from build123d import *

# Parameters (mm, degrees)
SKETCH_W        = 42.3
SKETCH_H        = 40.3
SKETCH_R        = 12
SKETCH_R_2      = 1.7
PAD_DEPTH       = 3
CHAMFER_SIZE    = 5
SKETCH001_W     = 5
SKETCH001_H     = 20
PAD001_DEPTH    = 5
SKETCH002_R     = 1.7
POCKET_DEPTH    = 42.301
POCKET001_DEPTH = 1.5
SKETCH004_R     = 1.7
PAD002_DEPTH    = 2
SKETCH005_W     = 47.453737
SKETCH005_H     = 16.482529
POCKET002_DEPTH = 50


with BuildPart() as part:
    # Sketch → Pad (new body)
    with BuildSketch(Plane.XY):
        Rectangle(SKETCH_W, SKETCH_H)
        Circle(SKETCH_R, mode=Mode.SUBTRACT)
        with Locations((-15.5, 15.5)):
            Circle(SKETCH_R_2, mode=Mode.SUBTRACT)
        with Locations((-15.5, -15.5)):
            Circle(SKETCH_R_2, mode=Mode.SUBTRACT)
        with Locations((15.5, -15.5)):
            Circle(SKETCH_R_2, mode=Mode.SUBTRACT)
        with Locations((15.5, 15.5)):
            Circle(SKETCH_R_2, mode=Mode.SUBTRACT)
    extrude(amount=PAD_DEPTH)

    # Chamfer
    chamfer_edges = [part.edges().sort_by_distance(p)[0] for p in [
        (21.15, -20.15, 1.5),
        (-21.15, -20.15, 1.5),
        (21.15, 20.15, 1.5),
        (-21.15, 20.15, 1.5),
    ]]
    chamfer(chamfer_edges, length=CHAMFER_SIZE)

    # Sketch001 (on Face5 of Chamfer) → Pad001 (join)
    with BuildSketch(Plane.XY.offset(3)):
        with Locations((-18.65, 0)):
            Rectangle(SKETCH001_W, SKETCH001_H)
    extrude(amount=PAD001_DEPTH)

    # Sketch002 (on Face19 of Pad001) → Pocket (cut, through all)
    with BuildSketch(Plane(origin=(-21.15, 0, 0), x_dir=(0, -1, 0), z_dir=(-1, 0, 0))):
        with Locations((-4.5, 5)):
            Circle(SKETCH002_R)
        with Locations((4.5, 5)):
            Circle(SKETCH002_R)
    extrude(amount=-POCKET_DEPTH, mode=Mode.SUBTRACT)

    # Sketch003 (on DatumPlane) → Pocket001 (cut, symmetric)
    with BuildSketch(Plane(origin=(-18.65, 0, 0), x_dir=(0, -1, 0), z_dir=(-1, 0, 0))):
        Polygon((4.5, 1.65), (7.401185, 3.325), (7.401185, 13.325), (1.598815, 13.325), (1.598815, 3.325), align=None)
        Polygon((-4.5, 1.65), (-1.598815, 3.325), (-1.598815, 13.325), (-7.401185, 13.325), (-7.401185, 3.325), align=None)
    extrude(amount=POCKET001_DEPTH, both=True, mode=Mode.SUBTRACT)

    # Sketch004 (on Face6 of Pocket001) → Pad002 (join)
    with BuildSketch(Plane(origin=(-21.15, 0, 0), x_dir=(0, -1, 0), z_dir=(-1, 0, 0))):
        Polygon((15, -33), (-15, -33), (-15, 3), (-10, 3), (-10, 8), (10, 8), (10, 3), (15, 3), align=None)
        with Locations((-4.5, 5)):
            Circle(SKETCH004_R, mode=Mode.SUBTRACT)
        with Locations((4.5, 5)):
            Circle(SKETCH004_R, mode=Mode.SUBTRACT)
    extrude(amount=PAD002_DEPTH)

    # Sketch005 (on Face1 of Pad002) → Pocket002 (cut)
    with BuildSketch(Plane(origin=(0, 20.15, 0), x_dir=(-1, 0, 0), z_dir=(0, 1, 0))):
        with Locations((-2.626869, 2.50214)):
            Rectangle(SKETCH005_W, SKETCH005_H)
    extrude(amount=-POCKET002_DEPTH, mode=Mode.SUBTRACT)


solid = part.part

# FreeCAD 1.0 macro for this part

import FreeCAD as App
import Part
import Sketcher
from FreeCAD import Vector
Q = App.Units.Quantity


def edges_at(feature, points):
    """Names of the edges that pass closest to the given points."""
    edges = feature.Shape.Edges
    near = lambda p: min(range(len(edges)), key=lambda i: edges[i].distToShape(Part.Vertex(*p))[0])
    return sorted({f"Edge{near(p) + 1}" for p in points})


def add_polygon(sketch, points):
    """Adds a closed chain of lines whose ends are joined by coincident constraints."""
    first, n = sketch.GeometryCount, len(points)
    for a, b in zip(points, points[1:] + points[:1]):
        sketch.addGeometry(Part.LineSegment(App.Vector(*a, 0), App.Vector(*b, 0)), False)
    for i in range(n):
        sketch.addConstraint(Sketcher.Constraint("Coincident", first + i, 2, first + (i + 1) % n, 1))

doc = App.newDocument("Part")
body = doc.addObject("PartDesign::Body", "Body")

# Sketch on XY plane
sketch1 = doc.addObject("Sketcher::SketchObject", "Sketch")
body.addObject(sketch1)
sketch1.AttachmentSupport = (doc.XY_Plane, [""])
sketch1.MapMode = "FlatFace"
add_polygon(sketch1, [(-21.1, 20.1), (-21.1, -20.1), (21.1, -20.1), (21.1, 20.1)])  # lines 0-3
sketch1.addGeometry(Part.Circle(Vector(-15.5, -15.5, 0), Vector(0, 0, 1), 1.7), False)  # 4
sketch1.addGeometry(Part.Circle(Vector(15.5, -15.5, 0), Vector(0, 0, 1), 1.7), False)  # 5
sketch1.addGeometry(Part.Circle(Vector(-15.5, 15.5, 0), Vector(0, 0, 1), 1.7), False)  # 6
sketch1.addGeometry(Part.Circle(Vector(0, 0, 0), Vector(0, 0, 1), 12), False)  # 7
sketch1.addGeometry(Part.Circle(Vector(15.5, 15.5, 0), Vector(0, 0, 1), 1.7), False)  # 8
sketch1.addConstraint([
    Sketcher.Constraint("Vertical", 0),
    Sketcher.Constraint("Horizontal", 1),
    Sketcher.Constraint("Vertical", 2),
    Sketcher.Constraint("Horizontal", 3),
    Sketcher.Constraint("Coincident", 7, 3, -1, 1),
    Sketcher.Constraint("Equal", 4, 5),
    Sketcher.Constraint("Equal", 5, 6),
    Sketcher.Constraint("Equal", 6, 8),
    Sketcher.Constraint("Symmetric", 5, 3, 6, 3, -1, 1),
    Sketcher.Constraint("Symmetric", 4, 3, 8, 3, -1, 1),
    Sketcher.Constraint("Symmetric", 0, 2, 2, 2, -1, 1),
    Sketcher.Constraint("Symmetric", 4, 3, 5, 3, -2),
    Sketcher.Constraint("Diameter", 7, 24.0),
    Sketcher.Constraint("Diameter", 4, 3.4),
    Sketcher.Constraint("DistanceX", 1, 1, 1, 2, 42.3),
    Sketcher.Constraint("DistanceY", 0, 2, 0, 1, 40.3),
    Sketcher.Constraint("DistanceX", 4, 3, 5, 3, 31.0),
    Sketcher.Constraint("DistanceY", 4, 3, 6, 3, 31.0),
])
pad1 = doc.addObject("PartDesign::Pad", "Pad")
body.addObject(pad1)
pad1.Profile = sketch1
pad1.Length = 3
doc.recompute()

chamfer = doc.addObject("PartDesign::Chamfer", "Chamfer")
body.addObject(chamfer)
chamfer.Base = (pad1, edges_at(pad1, [
    (21.15, -20.15, 1.5),
    (-21.15, -20.15, 1.5),
    (21.15, 20.15, 1.5),
    (-21.15, 20.15, 1.5),
]))
chamfer.Size = 5

# Sketch on XY plane
sketch2 = doc.addObject("Sketcher::SketchObject", "Sketch001")
body.addObject(sketch2)
sketch2.AttachmentSupport = (doc.XY_Plane, [""])
sketch2.MapMode = "FlatFace"
sketch2.AttachmentOffset = App.Placement(Vector(0, 0, 3), App.Rotation())
add_polygon(sketch2, [(-21, 10), (-21, -10), (-16, -10), (-16, 10)])  # lines 0-3
sketch2.addConstraint([
    Sketcher.Constraint("Vertical", 0),
    Sketcher.Constraint("Horizontal", 1),
    Sketcher.Constraint("Vertical", 2),
    Sketcher.Constraint("Horizontal", 3),
    Sketcher.Constraint("DistanceX", 1, 1, 1, 2, 5.0),
    Sketcher.Constraint("DistanceY", 0, 2, 0, 1, 20.0),
    Sketcher.Constraint("DistanceY", 0, 2, -1, 1, 10.0),
    Sketcher.Constraint("DistanceX", 0, 2, -1, 1, 21.15),
])
pad2 = doc.addObject("PartDesign::Pad", "Pad001")
body.addObject(pad2)
pad2.Profile = sketch2
pad2.Length = 5

# Sketch on YZ plane
sketch3 = doc.addObject("Sketcher::SketchObject", "Sketch002")
body.addObject(sketch3)
sketch3.AttachmentSupport = (doc.YZ_Plane, [""])
sketch3.MapMode = "FlatFace"
sketch3.AttachmentOffset = App.Placement(Vector(0, 0, -21.15), App.Rotation())
sketch3.addGeometry([
    Part.Circle(Vector(4.5, 5, 0), Vector(0, 0, 1), 1.7),
    Part.Circle(Vector(-4.5, 5, 0), Vector(0, 0, 1), 1.7),
], False)
sketch3.addConstraint([
    Sketcher.Constraint("Equal", 0, 1),
    Sketcher.Constraint("Symmetric", 0, 3, 1, 3, -2),
    Sketcher.Constraint("Diameter", 0, 3.4),
    Sketcher.Constraint("DistanceY", -1, 1, 0, 3, 5.0),
    Sketcher.Constraint("DistanceX", 1, 3, 0, 3, 9.0),
])
pocket1 = doc.addObject("PartDesign::Pocket", "Pocket")
body.addObject(pocket1)
pocket1.Profile = sketch3
pocket1.Type = "ThroughAll"
pocket1.Reversed = True

# Sketch on YZ plane
sketch4 = doc.addObject("Sketcher::SketchObject", "Sketch003")
body.addObject(sketch4)
sketch4.AttachmentSupport = (doc.YZ_Plane, [""])
sketch4.MapMode = "FlatFace"
sketch4.AttachmentOffset = App.Placement(Vector(0, 0, -18.65), App.Rotation())
add_polygon(sketch4, [(-4.5, 1.6), (-7.4, 3.3), (-7.4, 13.3), (-1.6, 13.3), (-1.6, 3.3)])  # lines 0-4
add_polygon(sketch4, [(4.5, 1.6), (1.6, 3.3), (1.6, 13.3), (7.4, 13.3), (7.4, 3.3)])  # lines 5-9
sketch4.addConstraint([
    Sketcher.Constraint("Vertical", 1),
    Sketcher.Constraint("Horizontal", 2),
    Sketcher.Constraint("Vertical", 3),
    Sketcher.Constraint("Vertical", 6),
    Sketcher.Constraint("Horizontal", 7),
    Sketcher.Constraint("Vertical", 8),
    Sketcher.Constraint("Symmetric", 3, 2, 5, 2, -2),
    Sketcher.Constraint("Symmetric", 1, 2, 7, 2, -2),
    Sketcher.Constraint("Symmetric", 4, 2, 9, 2, -2),
    Sketcher.Constraint("Parallel", 0, 5),
    Sketcher.Constraint("Parallel", 4, 9),
    Sketcher.Constraint("Horizontal", 0, 2, 3, 2),
    Sketcher.Constraint("DistanceY", 1, 1, 1, 2, 10.0),
    Sketcher.Constraint("Angle", 0, Q("149.999999 deg")),
    Sketcher.Constraint("DistanceX", 0, 2, 5, 2, 9.0),
    Sketcher.Constraint("Distance", 0, 3.35),
    Sketcher.Constraint("DistanceY", -1, 1, 4, 2, 1.65),
])
pocket2 = doc.addObject("PartDesign::Pocket", "Pocket001")
body.addObject(pocket2)
pocket2.Profile = sketch4
pocket2.Length = 3
pocket2.Midplane = True

# Sketch on YZ plane
sketch5 = doc.addObject("Sketcher::SketchObject", "Sketch004")
body.addObject(sketch5)
sketch5.AttachmentSupport = (doc.YZ_Plane, [""])
sketch5.MapMode = "FlatFace"
sketch5.AttachmentOffset = App.Placement(Vector(0, 0, -21.15), App.Rotation())
add_polygon(sketch5, [(15, -33), (-15, -33), (-15, 3), (-10, 3), (-10, 8), (10, 8), (10, 3), (15, 3)])  # lines 0-7
sketch5.addGeometry(Part.Circle(Vector(-4.5, 5, 0), Vector(0, 0, 1), 1.7), False)  # 8
sketch5.addGeometry(Part.Circle(Vector(4.5, 5, 0), Vector(0, 0, 1), 1.7), False)  # 9
sketch5.addConstraint([
    Sketcher.Constraint("Horizontal", 0),
    Sketcher.Constraint("Vertical", 1),
    Sketcher.Constraint("Horizontal", 2),
    Sketcher.Constraint("Vertical", 3),
    Sketcher.Constraint("Horizontal", 4),
    Sketcher.Constraint("Vertical", 5),
    Sketcher.Constraint("Horizontal", 6),
    Sketcher.Constraint("Vertical", 7),
    Sketcher.Constraint("Equal", 8, 9),
    Sketcher.Constraint("Symmetric", 8, 3, 9, 3, -2),
    Sketcher.Constraint("Symmetric", 2, 2, 5, 2, -2),
    Sketcher.Constraint("Equal", 2, 6),
    Sketcher.Constraint("Equal", 6, 3),
    Sketcher.Constraint("Diameter", 8, 3.4),
    Sketcher.Constraint("DistanceX", 0, 2, 0, 1, 30.0),
    Sketcher.Constraint("DistanceX", 2, 1, 2, 2, 5.0),
    Sketcher.Constraint("DistanceY", 1, 1, 1, 2, 36.0),
    Sketcher.Constraint("DistanceY", -1, 1, 8, 3, 5.0),
    Sketcher.Constraint("DistanceY", 0, 2, -1, 1, 33.0),
    Sketcher.Constraint("DistanceX", 8, 3, 9, 3, 9.0),
])
pad3 = doc.addObject("PartDesign::Pad", "Pad002")
body.addObject(pad3)
pad3.Profile = sketch5
pad3.Length = 2
pad3.Reversed = True

# Sketch on XZ plane
sketch6 = doc.addObject("Sketcher::SketchObject", "Sketch005")
body.addObject(sketch6)
sketch6.AttachmentSupport = (doc.XZ_Plane, [""])
sketch6.MapMode = "FlatFace"
sketch6.AttachmentOffset = App.Placement(Vector(0, 0, -20.15), App.Rotation())
add_polygon(sketch6, [(26, 11), (26, -6), (-21, -6), (-21, 11)])  # lines 0-3
sketch6.addConstraint([
    Sketcher.Constraint("Vertical", 0),
    Sketcher.Constraint("Horizontal", 1),
    Sketcher.Constraint("Vertical", 2),
    Sketcher.Constraint("Horizontal", 3),
    Sketcher.Constraint("DistanceX", 1, 2, -1, 1, 21.099999),
    Sketcher.Constraint("DistanceY", 0, 2, 0, 1, 16.482529),
    Sketcher.Constraint("DistanceX", 1, 2, 1, 1, 47.453737),
    Sketcher.Constraint("DistanceY", 0, 2, -1, 1, 5.739124),
])
pocket3 = doc.addObject("PartDesign::Pocket", "Pocket002")
body.addObject(pocket3)
pocket3.Profile = sketch6
pocket3.Length = 50
pocket3.Reversed = True

doc.recompute()
